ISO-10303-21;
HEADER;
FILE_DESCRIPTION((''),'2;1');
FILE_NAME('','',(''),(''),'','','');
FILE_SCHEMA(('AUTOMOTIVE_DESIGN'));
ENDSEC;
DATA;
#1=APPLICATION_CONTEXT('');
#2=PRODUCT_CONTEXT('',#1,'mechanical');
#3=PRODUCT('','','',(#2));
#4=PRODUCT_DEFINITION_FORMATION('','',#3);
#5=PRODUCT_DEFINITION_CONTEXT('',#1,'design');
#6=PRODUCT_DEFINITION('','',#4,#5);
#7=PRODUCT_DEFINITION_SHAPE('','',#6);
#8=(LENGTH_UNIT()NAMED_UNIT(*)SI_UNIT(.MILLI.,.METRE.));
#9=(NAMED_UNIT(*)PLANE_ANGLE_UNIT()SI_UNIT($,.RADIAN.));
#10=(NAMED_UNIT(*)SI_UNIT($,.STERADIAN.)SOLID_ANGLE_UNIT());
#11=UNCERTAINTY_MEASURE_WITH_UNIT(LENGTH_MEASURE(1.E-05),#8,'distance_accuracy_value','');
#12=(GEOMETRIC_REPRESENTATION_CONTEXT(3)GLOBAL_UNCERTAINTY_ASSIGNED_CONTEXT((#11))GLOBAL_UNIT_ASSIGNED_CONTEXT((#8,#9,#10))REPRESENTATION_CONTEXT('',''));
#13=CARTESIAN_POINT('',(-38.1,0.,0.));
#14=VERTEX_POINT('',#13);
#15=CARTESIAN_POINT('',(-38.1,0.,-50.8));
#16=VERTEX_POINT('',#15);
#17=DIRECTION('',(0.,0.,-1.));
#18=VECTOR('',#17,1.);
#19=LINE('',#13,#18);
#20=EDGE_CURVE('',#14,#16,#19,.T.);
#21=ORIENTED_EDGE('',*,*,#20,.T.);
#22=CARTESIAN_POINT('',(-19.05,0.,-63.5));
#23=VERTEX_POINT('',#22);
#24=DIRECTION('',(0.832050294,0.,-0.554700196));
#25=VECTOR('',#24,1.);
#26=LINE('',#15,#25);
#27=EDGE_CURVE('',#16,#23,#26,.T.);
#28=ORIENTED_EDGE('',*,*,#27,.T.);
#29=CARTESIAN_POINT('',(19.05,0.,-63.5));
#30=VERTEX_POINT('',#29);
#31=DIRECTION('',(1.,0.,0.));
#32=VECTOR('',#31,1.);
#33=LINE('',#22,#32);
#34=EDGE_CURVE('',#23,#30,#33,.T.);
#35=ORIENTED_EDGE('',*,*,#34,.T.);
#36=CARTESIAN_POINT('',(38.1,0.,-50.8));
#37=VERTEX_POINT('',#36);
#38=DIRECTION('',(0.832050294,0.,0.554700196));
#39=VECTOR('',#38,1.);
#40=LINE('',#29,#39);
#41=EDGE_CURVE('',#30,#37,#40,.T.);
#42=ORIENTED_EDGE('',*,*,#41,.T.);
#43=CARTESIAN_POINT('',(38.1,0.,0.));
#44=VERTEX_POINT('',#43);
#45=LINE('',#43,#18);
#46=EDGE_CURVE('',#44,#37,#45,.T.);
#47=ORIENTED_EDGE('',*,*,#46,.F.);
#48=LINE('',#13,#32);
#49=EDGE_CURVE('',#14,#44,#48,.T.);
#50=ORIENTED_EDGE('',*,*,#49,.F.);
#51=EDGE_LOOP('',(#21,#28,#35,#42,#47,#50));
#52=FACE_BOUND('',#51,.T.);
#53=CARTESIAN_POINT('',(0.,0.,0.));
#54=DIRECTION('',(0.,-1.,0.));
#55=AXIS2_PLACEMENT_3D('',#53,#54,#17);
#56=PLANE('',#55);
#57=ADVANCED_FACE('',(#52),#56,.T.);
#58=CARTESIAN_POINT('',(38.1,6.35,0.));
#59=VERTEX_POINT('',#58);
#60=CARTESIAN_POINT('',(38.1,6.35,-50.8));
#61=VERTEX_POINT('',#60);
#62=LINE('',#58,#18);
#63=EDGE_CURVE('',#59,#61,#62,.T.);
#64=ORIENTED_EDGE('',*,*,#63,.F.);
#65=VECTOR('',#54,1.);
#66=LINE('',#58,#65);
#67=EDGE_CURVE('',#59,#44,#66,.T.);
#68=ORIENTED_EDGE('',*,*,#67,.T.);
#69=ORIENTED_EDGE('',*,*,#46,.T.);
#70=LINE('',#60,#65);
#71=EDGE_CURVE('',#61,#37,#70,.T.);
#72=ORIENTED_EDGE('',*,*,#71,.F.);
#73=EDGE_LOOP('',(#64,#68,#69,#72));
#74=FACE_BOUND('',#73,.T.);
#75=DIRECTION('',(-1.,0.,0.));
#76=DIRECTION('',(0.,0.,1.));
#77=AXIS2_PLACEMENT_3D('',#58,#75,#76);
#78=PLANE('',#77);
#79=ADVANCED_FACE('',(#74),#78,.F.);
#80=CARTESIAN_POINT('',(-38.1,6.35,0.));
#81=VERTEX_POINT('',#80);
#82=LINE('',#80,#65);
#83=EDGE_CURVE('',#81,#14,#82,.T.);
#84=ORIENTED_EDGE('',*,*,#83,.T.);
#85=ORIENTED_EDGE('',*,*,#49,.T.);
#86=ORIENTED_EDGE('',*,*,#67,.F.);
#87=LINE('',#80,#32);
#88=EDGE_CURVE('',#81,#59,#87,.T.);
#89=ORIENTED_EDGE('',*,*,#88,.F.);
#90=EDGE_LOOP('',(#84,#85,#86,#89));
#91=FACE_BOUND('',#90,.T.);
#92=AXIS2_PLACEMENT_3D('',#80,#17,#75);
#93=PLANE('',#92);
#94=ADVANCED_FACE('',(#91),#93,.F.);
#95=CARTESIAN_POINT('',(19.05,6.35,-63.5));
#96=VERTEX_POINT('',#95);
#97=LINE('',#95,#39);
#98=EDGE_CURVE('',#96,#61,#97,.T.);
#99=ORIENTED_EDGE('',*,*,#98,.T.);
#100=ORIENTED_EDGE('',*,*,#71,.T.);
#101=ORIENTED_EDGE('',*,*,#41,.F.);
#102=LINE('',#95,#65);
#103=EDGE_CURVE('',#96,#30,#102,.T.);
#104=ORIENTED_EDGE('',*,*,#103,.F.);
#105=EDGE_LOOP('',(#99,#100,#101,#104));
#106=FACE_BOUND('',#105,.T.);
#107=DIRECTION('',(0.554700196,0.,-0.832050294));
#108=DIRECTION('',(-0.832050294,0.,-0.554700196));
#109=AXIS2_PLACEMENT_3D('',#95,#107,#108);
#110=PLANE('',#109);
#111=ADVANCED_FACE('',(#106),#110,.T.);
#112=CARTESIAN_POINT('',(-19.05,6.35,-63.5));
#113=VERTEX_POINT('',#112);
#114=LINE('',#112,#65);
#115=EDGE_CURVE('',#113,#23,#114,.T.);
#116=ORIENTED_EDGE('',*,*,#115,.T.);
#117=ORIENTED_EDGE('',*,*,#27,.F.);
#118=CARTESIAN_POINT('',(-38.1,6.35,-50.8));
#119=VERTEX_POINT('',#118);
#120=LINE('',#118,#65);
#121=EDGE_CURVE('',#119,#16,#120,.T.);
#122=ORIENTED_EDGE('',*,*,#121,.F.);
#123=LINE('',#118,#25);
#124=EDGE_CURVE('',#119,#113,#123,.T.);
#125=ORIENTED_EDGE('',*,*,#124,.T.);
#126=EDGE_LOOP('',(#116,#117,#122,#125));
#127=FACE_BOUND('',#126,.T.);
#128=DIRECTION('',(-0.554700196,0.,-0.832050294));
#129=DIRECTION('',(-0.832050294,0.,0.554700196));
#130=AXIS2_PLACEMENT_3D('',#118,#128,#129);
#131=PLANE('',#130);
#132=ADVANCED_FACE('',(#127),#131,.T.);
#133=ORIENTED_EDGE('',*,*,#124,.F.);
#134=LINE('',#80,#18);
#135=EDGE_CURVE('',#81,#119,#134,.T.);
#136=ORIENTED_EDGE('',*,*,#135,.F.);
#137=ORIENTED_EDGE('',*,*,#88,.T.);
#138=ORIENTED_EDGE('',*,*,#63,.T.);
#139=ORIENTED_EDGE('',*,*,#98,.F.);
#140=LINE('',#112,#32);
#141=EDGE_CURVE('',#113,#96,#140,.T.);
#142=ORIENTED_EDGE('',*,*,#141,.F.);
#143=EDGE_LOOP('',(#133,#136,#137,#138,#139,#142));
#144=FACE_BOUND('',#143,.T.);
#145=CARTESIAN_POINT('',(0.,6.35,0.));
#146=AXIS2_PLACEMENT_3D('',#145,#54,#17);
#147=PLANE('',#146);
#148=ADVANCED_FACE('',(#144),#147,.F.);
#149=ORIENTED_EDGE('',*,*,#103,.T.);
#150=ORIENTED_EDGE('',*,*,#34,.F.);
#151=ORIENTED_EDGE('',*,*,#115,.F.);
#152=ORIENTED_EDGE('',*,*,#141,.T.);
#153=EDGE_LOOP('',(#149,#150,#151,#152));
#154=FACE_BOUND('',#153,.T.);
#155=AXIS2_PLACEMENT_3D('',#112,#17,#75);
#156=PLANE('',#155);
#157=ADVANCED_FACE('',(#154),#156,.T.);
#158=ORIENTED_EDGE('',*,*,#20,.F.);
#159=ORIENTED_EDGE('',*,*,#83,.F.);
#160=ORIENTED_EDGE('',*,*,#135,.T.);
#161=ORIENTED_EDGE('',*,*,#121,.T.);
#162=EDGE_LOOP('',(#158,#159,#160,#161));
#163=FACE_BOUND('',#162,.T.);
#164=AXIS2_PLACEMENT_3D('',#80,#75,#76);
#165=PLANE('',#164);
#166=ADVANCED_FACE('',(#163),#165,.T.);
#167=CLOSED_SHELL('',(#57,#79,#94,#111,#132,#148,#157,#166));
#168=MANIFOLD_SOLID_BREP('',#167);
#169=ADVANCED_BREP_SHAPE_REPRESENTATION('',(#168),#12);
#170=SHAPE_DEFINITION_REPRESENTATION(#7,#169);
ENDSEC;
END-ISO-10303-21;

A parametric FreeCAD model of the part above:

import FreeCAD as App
import Part
import Sketcher
from FreeCAD import Vector
Q = App.Units.Quantity

doc = App.newDocument("Part")
params = doc.addObject("Spreadsheet::Sheet", "Params")
for row, (alias, value) in enumerate([
    ("sketch1_width", "3 in"),
    ("sketch1_height", "2 in"),
    ("sketch1_width2", "1.5 in"),
    ("pad1_length", "0.25 in"),
], start=1):
    params.set(f"A{row}", alias)
    params.set(f"B{row}", "=" + value)
    params.setAlias(f"B{row}", alias)

body = doc.addObject("PartDesign::Body", "Body")

sketch1 = body.newObject("Sketcher::SketchObject", "Sketch")
sketch1.AttachmentSupport = (doc.getObject("XZ_Plane"), [""])
sketch1.MapMode = "FlatFace"
sketch1.addGeometry(Part.LineSegment(Vector(-38, 0, 0), Vector(38, 0, 0)), False)
sketch1.addGeometry(Part.LineSegment(Vector(38, 0, 0), Vector(38, -51, 0)), False)
sketch1.addGeometry(Part.LineSegment(Vector(38, -51, 0), Vector(19, -64, 0)), False)
sketch1.addGeometry(Part.LineSegment(Vector(19, -64, 0), Vector(-19, -64, 0)), False)
sketch1.addGeometry(Part.LineSegment(Vector(-19, -64, 0), Vector(-38, -51, 0)), False)
sketch1.addGeometry(Part.LineSegment(Vector(-38, -51, 0), Vector(-38, 0, 0)), False)
sketch1.addConstraint(Sketcher.Constraint("Coincident", 0, 2, 1, 1))
sketch1.addConstraint(Sketcher.Constraint("Coincident", 1, 2, 2, 1))
sketch1.addConstraint(Sketcher.Constraint("Coincident", 2, 2, 3, 1))
sketch1.addConstraint(Sketcher.Constraint("Coincident", 3, 2, 4, 1))
sketch1.addConstraint(Sketcher.Constraint("Coincident", 4, 2, 5, 1))
sketch1.addConstraint(Sketcher.Constraint("Coincident", 5, 2, 0, 1))
sketch1.addConstraint(Sketcher.Constraint("Horizontal", 0))
sketch1.addConstraint(Sketcher.Constraint("Vertical", 1))
sketch1.addConstraint(Sketcher.Constraint("Horizontal", 3))
sketch1.addConstraint(Sketcher.Constraint("Vertical", 5))
sketch1.addConstraint(Sketcher.Constraint("Symmetric", 0, 2, 5, 2, -1, 1))
sketch1.addConstraint(Sketcher.Constraint("Horizontal", 1, 2, 4, 2))
sketch1.addConstraint(Sketcher.Constraint("Equal", 2, 4))
sketch1.addConstraint(Sketcher.Constraint("DistanceX", 0, 1, 0, 2, Q("3 in")))
sketch1.addConstraint(Sketcher.Constraint("DistanceY", 1, 2, 1, 1, Q("2 in")))
sketch1.addConstraint(Sketcher.Constraint("DistanceX", 3, 2, 3, 1, Q("1.5 in")))
sketch1.addConstraint(Sketcher.Constraint("DistanceY", 2, 2, -1, 1, Q("2.5 in")))
sketch1.setExpression("Constraints[13]", "Params.sketch1_width")
sketch1.setExpression("Constraints[14]", "Params.sketch1_height")
sketch1.setExpression("Constraints[15]", "Params.sketch1_width2")
pad1 = body.newObject("PartDesign::Pad", "Pad")
pad1.Profile = sketch1
pad1.setExpression("Length", "Params.pad1_length")
pad1.Reversed = True

doc.recompute()
